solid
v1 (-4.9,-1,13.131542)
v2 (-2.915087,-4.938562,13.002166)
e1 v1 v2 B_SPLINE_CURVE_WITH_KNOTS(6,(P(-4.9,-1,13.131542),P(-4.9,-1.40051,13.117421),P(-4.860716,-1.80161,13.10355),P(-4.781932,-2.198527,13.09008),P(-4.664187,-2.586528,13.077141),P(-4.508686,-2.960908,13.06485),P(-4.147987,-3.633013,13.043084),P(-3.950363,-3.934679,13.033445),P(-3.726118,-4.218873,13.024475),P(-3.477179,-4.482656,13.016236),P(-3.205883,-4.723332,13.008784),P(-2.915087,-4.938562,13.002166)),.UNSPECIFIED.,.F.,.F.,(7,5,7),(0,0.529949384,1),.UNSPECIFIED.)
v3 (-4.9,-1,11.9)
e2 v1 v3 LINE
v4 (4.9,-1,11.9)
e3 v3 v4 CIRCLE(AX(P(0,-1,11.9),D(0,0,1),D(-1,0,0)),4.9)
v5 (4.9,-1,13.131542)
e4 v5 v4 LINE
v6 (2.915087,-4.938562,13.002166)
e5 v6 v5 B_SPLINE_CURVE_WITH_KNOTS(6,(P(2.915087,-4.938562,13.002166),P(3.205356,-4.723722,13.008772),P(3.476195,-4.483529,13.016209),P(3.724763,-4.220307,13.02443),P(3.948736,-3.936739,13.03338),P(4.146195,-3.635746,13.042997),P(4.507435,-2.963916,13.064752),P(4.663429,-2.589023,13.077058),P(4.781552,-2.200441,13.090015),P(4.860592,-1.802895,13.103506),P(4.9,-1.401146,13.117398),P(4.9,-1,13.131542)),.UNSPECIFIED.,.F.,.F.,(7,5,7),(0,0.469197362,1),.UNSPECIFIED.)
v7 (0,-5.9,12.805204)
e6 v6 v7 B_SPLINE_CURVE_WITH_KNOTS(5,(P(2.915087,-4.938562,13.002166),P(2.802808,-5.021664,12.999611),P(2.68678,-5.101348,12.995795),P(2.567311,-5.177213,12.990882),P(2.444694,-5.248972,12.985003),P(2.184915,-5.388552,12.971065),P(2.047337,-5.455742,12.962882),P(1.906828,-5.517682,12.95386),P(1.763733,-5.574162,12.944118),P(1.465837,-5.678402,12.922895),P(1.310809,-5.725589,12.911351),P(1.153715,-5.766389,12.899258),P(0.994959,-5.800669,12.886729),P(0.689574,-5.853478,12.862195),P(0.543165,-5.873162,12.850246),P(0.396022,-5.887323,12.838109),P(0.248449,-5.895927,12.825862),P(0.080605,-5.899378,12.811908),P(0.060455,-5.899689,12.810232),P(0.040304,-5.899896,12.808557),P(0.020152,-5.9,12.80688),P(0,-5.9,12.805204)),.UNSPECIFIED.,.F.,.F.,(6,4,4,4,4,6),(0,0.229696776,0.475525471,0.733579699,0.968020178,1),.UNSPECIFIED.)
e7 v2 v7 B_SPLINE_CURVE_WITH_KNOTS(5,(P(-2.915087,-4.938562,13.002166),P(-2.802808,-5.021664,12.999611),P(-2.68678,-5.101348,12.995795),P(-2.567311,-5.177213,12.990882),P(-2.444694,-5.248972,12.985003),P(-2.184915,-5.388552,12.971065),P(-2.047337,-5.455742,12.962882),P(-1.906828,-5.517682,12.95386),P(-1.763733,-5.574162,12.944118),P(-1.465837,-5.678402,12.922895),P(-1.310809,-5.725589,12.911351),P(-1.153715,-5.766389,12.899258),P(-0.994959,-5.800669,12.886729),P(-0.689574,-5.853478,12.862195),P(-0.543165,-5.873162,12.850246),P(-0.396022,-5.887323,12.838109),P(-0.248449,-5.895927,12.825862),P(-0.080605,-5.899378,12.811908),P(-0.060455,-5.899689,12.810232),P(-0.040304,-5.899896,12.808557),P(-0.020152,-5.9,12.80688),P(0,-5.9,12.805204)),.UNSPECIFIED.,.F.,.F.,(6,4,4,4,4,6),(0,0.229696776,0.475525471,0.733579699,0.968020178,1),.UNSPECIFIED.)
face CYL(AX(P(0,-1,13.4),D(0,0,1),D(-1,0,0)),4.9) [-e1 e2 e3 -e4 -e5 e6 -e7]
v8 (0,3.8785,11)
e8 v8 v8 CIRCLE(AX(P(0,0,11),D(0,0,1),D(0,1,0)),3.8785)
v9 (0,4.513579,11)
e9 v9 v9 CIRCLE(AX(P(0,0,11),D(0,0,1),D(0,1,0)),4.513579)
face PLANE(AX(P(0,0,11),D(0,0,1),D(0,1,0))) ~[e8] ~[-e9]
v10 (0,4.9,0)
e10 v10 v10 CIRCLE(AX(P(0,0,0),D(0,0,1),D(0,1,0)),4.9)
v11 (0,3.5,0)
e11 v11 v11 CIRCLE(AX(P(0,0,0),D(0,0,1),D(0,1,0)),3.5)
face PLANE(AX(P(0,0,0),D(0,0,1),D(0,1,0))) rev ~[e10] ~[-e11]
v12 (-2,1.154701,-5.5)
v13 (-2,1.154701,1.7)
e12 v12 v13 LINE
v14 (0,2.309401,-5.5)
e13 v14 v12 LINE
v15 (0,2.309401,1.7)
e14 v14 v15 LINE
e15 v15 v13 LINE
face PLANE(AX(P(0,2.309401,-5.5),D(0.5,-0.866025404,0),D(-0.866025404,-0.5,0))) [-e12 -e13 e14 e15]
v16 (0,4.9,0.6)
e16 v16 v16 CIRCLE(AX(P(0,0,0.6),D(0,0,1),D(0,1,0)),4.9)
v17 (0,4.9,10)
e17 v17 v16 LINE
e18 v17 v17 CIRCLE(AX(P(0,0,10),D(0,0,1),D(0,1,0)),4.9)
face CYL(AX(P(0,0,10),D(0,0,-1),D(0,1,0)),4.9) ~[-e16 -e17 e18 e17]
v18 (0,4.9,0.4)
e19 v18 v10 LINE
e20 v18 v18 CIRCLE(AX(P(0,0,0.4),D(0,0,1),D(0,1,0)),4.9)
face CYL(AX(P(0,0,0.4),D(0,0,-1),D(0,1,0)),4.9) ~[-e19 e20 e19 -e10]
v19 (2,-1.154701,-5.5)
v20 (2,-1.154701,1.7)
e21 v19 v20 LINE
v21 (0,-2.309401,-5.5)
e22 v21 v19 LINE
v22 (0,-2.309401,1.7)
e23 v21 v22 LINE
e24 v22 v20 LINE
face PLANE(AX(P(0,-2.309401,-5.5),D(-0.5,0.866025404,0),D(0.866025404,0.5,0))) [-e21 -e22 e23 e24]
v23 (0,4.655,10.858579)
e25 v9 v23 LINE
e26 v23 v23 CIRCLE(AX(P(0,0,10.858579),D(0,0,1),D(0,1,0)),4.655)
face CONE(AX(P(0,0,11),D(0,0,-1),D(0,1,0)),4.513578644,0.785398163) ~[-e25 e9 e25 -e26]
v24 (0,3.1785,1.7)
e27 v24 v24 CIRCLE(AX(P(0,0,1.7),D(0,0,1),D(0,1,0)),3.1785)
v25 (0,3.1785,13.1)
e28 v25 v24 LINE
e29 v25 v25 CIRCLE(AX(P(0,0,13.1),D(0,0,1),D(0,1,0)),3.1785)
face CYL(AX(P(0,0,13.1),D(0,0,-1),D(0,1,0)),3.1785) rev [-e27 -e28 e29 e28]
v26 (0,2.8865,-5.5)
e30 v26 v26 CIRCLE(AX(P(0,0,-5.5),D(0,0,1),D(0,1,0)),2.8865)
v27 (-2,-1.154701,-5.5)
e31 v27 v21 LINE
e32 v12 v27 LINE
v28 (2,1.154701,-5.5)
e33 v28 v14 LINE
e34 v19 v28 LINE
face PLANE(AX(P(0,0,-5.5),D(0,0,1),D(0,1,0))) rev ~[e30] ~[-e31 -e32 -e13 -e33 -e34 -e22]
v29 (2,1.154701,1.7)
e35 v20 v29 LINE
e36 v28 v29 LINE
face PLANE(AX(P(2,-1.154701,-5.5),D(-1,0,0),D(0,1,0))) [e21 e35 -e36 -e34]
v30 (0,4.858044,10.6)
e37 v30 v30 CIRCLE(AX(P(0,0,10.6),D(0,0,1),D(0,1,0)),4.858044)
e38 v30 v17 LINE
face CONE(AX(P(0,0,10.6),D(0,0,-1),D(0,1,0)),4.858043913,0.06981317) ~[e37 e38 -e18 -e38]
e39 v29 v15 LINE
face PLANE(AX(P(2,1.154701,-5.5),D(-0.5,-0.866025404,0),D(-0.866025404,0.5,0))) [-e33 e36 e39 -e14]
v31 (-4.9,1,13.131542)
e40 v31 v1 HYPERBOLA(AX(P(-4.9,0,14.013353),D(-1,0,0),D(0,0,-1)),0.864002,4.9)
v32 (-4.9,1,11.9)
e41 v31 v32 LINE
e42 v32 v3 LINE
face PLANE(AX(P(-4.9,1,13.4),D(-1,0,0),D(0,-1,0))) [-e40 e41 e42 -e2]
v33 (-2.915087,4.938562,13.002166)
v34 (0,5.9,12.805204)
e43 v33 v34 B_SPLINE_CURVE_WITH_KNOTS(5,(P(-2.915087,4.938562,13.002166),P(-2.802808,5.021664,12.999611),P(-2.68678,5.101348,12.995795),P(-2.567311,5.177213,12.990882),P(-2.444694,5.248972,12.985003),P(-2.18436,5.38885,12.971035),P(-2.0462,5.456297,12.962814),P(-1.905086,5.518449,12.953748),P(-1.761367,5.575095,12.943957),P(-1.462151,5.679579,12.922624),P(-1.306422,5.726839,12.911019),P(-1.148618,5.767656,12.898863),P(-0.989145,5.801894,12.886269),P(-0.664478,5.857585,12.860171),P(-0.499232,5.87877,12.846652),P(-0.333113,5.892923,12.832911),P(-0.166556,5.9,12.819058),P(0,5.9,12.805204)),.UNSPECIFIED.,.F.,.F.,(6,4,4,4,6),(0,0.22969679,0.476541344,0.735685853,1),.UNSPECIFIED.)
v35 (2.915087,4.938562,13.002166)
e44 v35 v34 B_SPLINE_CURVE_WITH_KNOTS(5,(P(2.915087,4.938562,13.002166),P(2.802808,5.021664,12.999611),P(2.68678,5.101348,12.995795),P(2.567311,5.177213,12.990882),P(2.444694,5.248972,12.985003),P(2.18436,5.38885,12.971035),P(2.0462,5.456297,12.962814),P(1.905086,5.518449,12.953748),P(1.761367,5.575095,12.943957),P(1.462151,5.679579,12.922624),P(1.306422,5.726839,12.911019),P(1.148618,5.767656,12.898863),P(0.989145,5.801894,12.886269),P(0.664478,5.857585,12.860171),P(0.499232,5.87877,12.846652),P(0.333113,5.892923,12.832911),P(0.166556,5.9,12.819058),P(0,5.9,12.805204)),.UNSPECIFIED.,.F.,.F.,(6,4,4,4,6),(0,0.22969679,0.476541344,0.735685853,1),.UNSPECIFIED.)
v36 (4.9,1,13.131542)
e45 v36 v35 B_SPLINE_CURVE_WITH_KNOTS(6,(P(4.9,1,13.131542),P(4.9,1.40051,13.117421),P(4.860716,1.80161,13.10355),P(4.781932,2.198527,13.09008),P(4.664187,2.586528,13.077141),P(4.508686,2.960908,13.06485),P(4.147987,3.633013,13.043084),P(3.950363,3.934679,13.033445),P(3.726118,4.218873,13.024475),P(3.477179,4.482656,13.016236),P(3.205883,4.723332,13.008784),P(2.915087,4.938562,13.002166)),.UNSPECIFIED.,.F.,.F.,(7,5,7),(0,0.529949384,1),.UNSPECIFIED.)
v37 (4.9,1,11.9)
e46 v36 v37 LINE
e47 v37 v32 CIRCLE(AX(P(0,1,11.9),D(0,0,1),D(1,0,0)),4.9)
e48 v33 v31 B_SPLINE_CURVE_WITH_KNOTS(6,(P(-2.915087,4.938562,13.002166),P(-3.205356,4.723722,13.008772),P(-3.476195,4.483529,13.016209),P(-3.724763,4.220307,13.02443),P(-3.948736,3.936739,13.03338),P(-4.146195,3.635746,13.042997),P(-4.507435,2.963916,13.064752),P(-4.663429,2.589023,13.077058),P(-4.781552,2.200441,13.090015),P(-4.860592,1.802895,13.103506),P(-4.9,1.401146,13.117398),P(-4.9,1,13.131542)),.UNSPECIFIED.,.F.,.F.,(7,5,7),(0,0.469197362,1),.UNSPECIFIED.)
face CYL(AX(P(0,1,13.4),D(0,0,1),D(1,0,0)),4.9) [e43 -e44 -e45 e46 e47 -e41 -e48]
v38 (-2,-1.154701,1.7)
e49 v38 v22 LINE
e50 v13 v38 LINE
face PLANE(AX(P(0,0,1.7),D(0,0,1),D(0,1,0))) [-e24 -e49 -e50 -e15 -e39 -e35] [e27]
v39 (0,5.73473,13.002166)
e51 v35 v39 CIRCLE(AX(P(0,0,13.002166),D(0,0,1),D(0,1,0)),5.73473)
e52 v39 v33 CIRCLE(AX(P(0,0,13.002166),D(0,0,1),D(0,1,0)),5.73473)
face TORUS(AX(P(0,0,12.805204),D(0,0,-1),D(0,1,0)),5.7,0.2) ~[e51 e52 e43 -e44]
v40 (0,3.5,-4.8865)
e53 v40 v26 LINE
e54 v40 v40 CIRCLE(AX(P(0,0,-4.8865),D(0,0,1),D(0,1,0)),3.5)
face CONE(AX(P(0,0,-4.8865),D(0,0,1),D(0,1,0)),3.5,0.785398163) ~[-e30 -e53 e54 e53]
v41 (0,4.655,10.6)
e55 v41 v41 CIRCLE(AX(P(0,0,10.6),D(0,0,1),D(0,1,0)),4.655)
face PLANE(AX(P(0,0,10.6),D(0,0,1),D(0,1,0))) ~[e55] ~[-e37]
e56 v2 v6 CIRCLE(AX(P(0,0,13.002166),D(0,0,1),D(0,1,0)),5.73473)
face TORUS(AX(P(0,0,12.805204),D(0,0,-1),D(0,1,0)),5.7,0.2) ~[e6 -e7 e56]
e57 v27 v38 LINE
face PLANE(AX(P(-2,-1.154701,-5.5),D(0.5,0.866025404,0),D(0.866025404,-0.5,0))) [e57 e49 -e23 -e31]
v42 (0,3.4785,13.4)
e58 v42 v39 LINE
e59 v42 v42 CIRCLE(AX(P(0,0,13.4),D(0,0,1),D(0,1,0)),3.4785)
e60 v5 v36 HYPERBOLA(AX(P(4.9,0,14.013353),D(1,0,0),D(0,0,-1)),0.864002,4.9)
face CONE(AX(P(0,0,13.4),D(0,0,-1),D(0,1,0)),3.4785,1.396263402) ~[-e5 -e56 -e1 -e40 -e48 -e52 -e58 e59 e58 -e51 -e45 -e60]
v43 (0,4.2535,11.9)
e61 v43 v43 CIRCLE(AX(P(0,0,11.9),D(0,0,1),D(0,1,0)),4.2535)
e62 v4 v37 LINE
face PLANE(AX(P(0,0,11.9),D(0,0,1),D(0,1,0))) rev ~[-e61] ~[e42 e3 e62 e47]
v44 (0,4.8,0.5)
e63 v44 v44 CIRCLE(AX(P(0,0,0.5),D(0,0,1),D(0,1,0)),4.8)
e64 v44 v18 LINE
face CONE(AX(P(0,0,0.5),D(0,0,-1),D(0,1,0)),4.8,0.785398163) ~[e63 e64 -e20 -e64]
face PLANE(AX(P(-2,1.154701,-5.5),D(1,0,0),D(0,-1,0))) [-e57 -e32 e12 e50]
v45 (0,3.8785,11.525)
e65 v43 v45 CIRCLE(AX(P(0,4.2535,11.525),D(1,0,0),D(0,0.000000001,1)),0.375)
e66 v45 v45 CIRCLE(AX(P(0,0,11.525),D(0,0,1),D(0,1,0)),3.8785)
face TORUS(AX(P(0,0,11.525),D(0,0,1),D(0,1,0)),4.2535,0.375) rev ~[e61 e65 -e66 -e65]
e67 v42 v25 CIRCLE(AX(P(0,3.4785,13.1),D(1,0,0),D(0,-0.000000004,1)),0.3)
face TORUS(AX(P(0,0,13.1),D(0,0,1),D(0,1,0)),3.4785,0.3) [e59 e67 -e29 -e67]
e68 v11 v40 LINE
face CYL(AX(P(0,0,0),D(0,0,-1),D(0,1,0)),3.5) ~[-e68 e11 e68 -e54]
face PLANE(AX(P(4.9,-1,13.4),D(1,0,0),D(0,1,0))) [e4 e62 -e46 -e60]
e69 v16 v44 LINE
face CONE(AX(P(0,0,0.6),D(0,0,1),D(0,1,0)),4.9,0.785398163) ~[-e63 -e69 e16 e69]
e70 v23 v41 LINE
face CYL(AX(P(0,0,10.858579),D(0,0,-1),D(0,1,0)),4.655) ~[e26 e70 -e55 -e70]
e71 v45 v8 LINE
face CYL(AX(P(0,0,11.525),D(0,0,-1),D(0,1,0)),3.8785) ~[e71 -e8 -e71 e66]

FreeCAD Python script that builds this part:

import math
import FreeCAD as App
import Part
import Sketcher
from FreeCAD import Vector
Q = App.Units.Quantity


def add_polygon(sketch, points):
    """Adds a closed chain of lines whose ends are joined by coincident constraints."""
    first, n = sketch.GeometryCount, len(points)
    for a, b in zip(points, points[1:] + points[:1]):
        sketch.addGeometry(Part.LineSegment(App.Vector(*a, 0), App.Vector(*b, 0)), False)
    for i in range(n):
        sketch.addConstraint(Sketcher.Constraint("Coincident", first + i, 2, first + (i + 1) % n, 1))

doc = App.newDocument("Part")
body = doc.addObject("PartDesign::Body", "Body")

# Sketch on YZ plane
sketch1 = doc.addObject("Sketcher::SketchObject", "Sketch")
body.addObject(sketch1)
sketch1.AttachmentSupport = (doc.YZ_Plane, [""])
sketch1.MapMode = "FlatFace"
sketch1.addGeometry(Part.LineSegment(Vector(3.48, 13.4, 0), Vector(0, 13.4, 0)), False)
sketch1.addGeometry(Part.LineSegment(Vector(0, 13.4, 0), Vector(0, -5.5, 0)), False)
sketch1.addGeometry(Part.LineSegment(Vector(0, -5.5, 0), Vector(2.89, -5.5, 0)), False)
sketch1.addGeometry(Part.LineSegment(Vector(2.89, -5.5, 0), Vector(3.5, -4.89, 0)), False)
sketch1.addGeometry(Part.LineSegment(Vector(3.5, -4.89, 0), Vector(3.5, 0, 0)), False)
sketch1.addGeometry(Part.LineSegment(Vector(3.5, 0, 0), Vector(4.9, 0, 0)), False)
sketch1.addGeometry(Part.LineSegment(Vector(4.9, 0, 0), Vector(4.9, 0.4, 0)), False)
sketch1.addGeometry(Part.LineSegment(Vector(4.9, 0.4, 0), Vector(4.8, 0.5, 0)), False)
sketch1.addGeometry(Part.LineSegment(Vector(4.8, 0.5, 0), Vector(4.9, 0.6, 0)), False)
sketch1.addGeometry(Part.LineSegment(Vector(4.9, 0.6, 0), Vector(4.9, 10, 0)), False)
sketch1.addGeometry(Part.LineSegment(Vector(4.9, 10, 0), Vector(4.86, 10.6, 0)), False)
sketch1.addGeometry(Part.LineSegment(Vector(4.86, 10.6, 0), Vector(4.66, 10.6, 0)), False)
sketch1.addGeometry(Part.LineSegment(Vector(4.66, 10.6, 0), Vector(4.66, 10.86, 0)), False)
sketch1.addGeometry(Part.LineSegment(Vector(4.66, 10.86, 0), Vector(4.51, 11, 0)), False)
sketch1.addGeometry(Part.LineSegment(Vector(4.51, 11, 0), Vector(3.88, 11, 0)), False)
sketch1.addGeometry(Part.LineSegment(Vector(3.88, 11, 0), Vector(3.88, 11.53, 0)), False)
sketch1.addGeometry(Part.ArcOfCircle(Part.Circle(Vector(4.25, 11.53, 0), Vector(0, 0, 1), 0.38), math.radians(90), math.radians(180)), False)
sketch1.addGeometry(Part.LineSegment(Vector(4.25, 11.9, 0), Vector(5.9, 11.9, 0)), False)
sketch1.addGeometry(Part.LineSegment(Vector(5.9, 11.9, 0), Vector(5.9, 12.81, 0)), False)
sketch1.addGeometry(Part.ArcOfCircle(Part.Circle(Vector(5.7, 12.81, 0), Vector(0, 0, 1), 0.2), math.radians(0), math.radians(80)), False)
sketch1.addGeometry(Part.LineSegment(Vector(5.73, 13, 0), Vector(3.48, 13.4, 0)), False)
sketch1.addConstraint(Sketcher.Constraint("Coincident", 0, 2, 1, 1))
sketch1.addConstraint(Sketcher.Constraint("Coincident", 1, 2, 2, 1))
sketch1.addConstraint(Sketcher.Constraint("Coincident", 2, 2, 3, 1))
sketch1.addConstraint(Sketcher.Constraint("Coincident", 3, 2, 4, 1))
sketch1.addConstraint(Sketcher.Constraint("Coincident", 4, 2, 5, 1))
sketch1.addConstraint(Sketcher.Constraint("Coincident", 5, 2, 6, 1))
sketch1.addConstraint(Sketcher.Constraint("Coincident", 6, 2, 7, 1))
sketch1.addConstraint(Sketcher.Constraint("Coincident", 7, 2, 8, 1))
sketch1.addConstraint(Sketcher.Constraint("Coincident", 8, 2, 9, 1))
sketch1.addConstraint(Sketcher.Constraint("Coincident", 9, 2, 10, 1))
sketch1.addConstraint(Sketcher.Constraint("Coincident", 10, 2, 11, 1))
sketch1.addConstraint(Sketcher.Constraint("Coincident", 11, 2, 12, 1))
sketch1.addConstraint(Sketcher.Constraint("Coincident", 12, 2, 13, 1))
sketch1.addConstraint(Sketcher.Constraint("Coincident", 13, 2, 14, 1))
sketch1.addConstraint(Sketcher.Constraint("Coincident", 14, 2, 15, 1))
sketch1.addConstraint(Sketcher.Constraint("Tangent", 15, 2, 16, 2))
sketch1.addConstraint(Sketcher.Constraint("Tangent", 16, 1, 17, 1))
sketch1.addConstraint(Sketcher.Constraint("Coincident", 17, 2, 18, 1))
sketch1.addConstraint(Sketcher.Constraint("Tangent", 18, 2, 19, 1))
sketch1.addConstraint(Sketcher.Constraint("Tangent", 19, 2, 20, 1))
sketch1.addConstraint(Sketcher.Constraint("Coincident", 20, 2, 0, 1))
sketch1.addConstraint(Sketcher.Constraint("Horizontal", 0))
sketch1.addConstraint(Sketcher.Constraint("Vertical", 1))
sketch1.addConstraint(Sketcher.Constraint("Horizontal", 2))
sketch1.addConstraint(Sketcher.Constraint("Vertical", 4))
sketch1.addConstraint(Sketcher.Constraint("Horizontal", 5))
sketch1.addConstraint(Sketcher.Constraint("Vertical", 6))
sketch1.addConstraint(Sketcher.Constraint("Vertical", 9))
sketch1.addConstraint(Sketcher.Constraint("Horizontal", 11))
sketch1.addConstraint(Sketcher.Constraint("Vertical", 12))
sketch1.addConstraint(Sketcher.Constraint("Horizontal", 14))
sketch1.addConstraint(Sketcher.Constraint("Vertical", 15))
sketch1.addConstraint(Sketcher.Constraint("Horizontal", 17))
sketch1.addConstraint(Sketcher.Constraint("Vertical", 18))
sketch1.addConstraint(Sketcher.Constraint("PointOnObject", 0, 2, -2))
sketch1.addConstraint(Sketcher.Constraint("PointOnObject", 4, 2, -1))
sketch1.addConstraint(Sketcher.Constraint("Perpendicular", 3, 7))
sketch1.addConstraint(Sketcher.Constraint("Perpendicular", 7, 8))
sketch1.addConstraint(Sketcher.Constraint("Perpendicular", 8, 13))
sketch1.addConstraint(Sketcher.Constraint("Vertical", 6, 2, 8, 2))
sketch1.addConstraint(Sketcher.Constraint("Equal", 7, 8))
sketch1.addConstraint(Sketcher.Constraint("Radius", 19, 0.2))
sketch1.addConstraint(Sketcher.Constraint("Angle", 10, Q("94 deg")))
sketch1.addConstraint(Sketcher.Constraint("Angle", 20, Q("170 deg")))
sketch1.addConstraint(Sketcher.Constraint("DistanceX", 5, 1, 5, 2, 1.4))
sketch1.addConstraint(Sketcher.Constraint("DistanceY", 1, 2, 1, 1, 18.9))
sketch1.addConstraint(Sketcher.Constraint("DistanceY", 6, 1, 6, 2, 0.4))
sketch1.addConstraint(Sketcher.Constraint("DistanceY", 9, 1, 9, 2, 9.4))
sketch1.addConstraint(Sketcher.Constraint("DistanceY", -1, 1, 9, 2, 10.0))
sketch1.addConstraint(Sketcher.Constraint("DistanceY", -1, 1, 13, 2, 11.0))
sketch1.addConstraint(Sketcher.Constraint("Radius", 16, 0.375))
sketch1.addConstraint(Sketcher.Constraint("DistanceY", 2, 2, 7, 2, 6.0))
sketch1.addConstraint(Sketcher.Constraint("DistanceY", 8, 2, 10, 2, 10.0))
sketch1.addConstraint(Sketcher.Constraint("Distance", 13, 0.2))
sketch1.addConstraint(Sketcher.Constraint("DistanceX", -1, 1, 19, 3, 5.7))
sketch1.addConstraint(Sketcher.Constraint("DistanceX", -1, 1, 3, 2, 3.5))
sketch1.addConstraint(Sketcher.Constraint("DistanceY", -1, 1, 16, 1, 11.9))
sketch1.addConstraint(Sketcher.Constraint("DistanceX", 20, 2, 15, 2, 0.4))
sketch1.addConstraint(Sketcher.Constraint("DistanceX", 0, 2, 0, 1, 3.4785))
sketch1.addConstraint(Sketcher.Constraint("DistanceX", 2, 1, 2, 2, 2.8865))
sketch1.addConstraint(Sketcher.Constraint("DistanceX", -1, 1, 11, 2, 4.655))
revolution = doc.addObject("PartDesign::Revolution", "Revolution")
body.addObject(revolution)
revolution.Profile = sketch1
revolution.ReferenceAxis = (sketch1, ["V_Axis"])
revolution.Angle = 360

# Sketch on XY plane
sketch2 = doc.addObject("Sketcher::SketchObject", "Sketch001")
body.addObject(sketch2)
sketch2.AttachmentSupport = (doc.XY_Plane, [""])
sketch2.MapMode = "FlatFace"
sketch2.AttachmentOffset = App.Placement(Vector(0, 0, 13.4), App.Rotation())
add_polygon(sketch2, [(-11.8, 11.8), (-11.8, -11.8), (11.8, -11.8), (11.8, 11.8)])  # lines 0-3
sketch2.addGeometry(Part.LineSegment(Vector(4.9, 1, 0), Vector(4.9, -1, 0)), False)  # 4
sketch2.addGeometry(Part.ArcOfCircle(Part.Circle(Vector(0, -1, 0), Vector(0, 0, 1), 4.9), math.radians(180), math.radians(360)), False)  # 5
sketch2.addGeometry(Part.LineSegment(Vector(-4.9, -1, 0), Vector(-4.9, 1, 0)), False)  # 6
sketch2.addGeometry(Part.ArcOfCircle(Part.Circle(Vector(0, 1, 0), Vector(0, 0, 1), 4.9), math.radians(0), math.radians(180)), False)  # 7
sketch2.addConstraint(Sketcher.Constraint("Tangent", 4, 2, 5, 2))
sketch2.addConstraint(Sketcher.Constraint("Tangent", 5, 1, 6, 1))
sketch2.addConstraint(Sketcher.Constraint("Tangent", 6, 2, 7, 2))
sketch2.addConstraint(Sketcher.Constraint("Tangent", 7, 1, 4, 1))
sketch2.addConstraint(Sketcher.Constraint("Vertical", 0))
sketch2.addConstraint(Sketcher.Constraint("Horizontal", 1))
sketch2.addConstraint(Sketcher.Constraint("Vertical", 2))
sketch2.addConstraint(Sketcher.Constraint("Horizontal", 3))
sketch2.addConstraint(Sketcher.Constraint("Vertical", 4))
sketch2.addConstraint(Sketcher.Constraint("Vertical", 6))
sketch2.addConstraint(Sketcher.Constraint("Symmetric", 5, 3, 7, 3, -1, 1))
sketch2.addConstraint(Sketcher.Constraint("Symmetric", 0, 2, 2, 2, -1, 1))
sketch2.addConstraint(Sketcher.Constraint("Equal", 3, 0))
sketch2.addConstraint(Sketcher.Constraint("Radius", 5, 4.9))
sketch2.addConstraint(Sketcher.Constraint("DistanceY", 4, 2, 4, 1, 2.0))
sketch2.addConstraint(Sketcher.Constraint("DistanceX", 1, 1, 1, 2, 23.6))
pocket1 = doc.addObject("PartDesign::Pocket", "Pocket")
body.addObject(pocket1)
pocket1.Profile = sketch2
pocket1.Length = 1.5

# Sketch on XY plane
sketch3 = doc.addObject("Sketcher::SketchObject", "Sketch002")
body.addObject(sketch3)
sketch3.AttachmentSupport = (doc.XY_Plane, [""])
sketch3.MapMode = "FlatFace"
sketch3.AttachmentOffset = App.Placement(Vector(0, 0, -5.5), App.Rotation())
add_polygon(sketch3, [(-2, 1.2), (-2, -1.2), (0, -2.3), (2, -1.2), (2, 1.2), (0, 2.3)])  # lines 0-5
sketch3.addConstraint(Sketcher.Constraint("Vertical", 0))
sketch3.addConstraint(Sketcher.Constraint("Vertical", 3))
sketch3.addConstraint(Sketcher.Constraint("Symmetric", 0, 2, 3, 2, -1, 1))
sketch3.addConstraint(Sketcher.Constraint("Symmetric", 1, 2, 4, 2, -1, 1))
sketch3.addConstraint(Sketcher.Constraint("PointOnObject", 1, 2, -2))
sketch3.addConstraint(Sketcher.Constraint("Parallel", 2, 5))
sketch3.addConstraint(Sketcher.Constraint("Horizontal", 0, 2, 2, 2))
sketch3.addConstraint(Sketcher.Constraint("Angle", 1, Q("-30 deg")))
sketch3.addConstraint(Sketcher.Constraint("DistanceX", 0, 2, -1, 1, 2.0))
sketch3.addConstraint(Sketcher.Constraint("DistanceY", 0, 2, 0, 1, 2.309401))
pocket2 = doc.addObject("PartDesign::Pocket", "Pocket001")
body.addObject(pocket2)
pocket2.Profile = sketch3
pocket2.Length = 7.2
pocket2.Reversed = True

# Sketch on YZ plane
sketch4 = doc.addObject("Sketcher::SketchObject", "Sketch003")
body.addObject(sketch4)
sketch4.AttachmentSupport = (doc.YZ_Plane, [""])
sketch4.MapMode = "FlatFace"
sketch4.addGeometry(Part.LineSegment(Vector(3.48, 13.4, 0), Vector(0, 13.4, 0)), False)
sketch4.addGeometry(Part.LineSegment(Vector(0, 13.4, 0), Vector(0, 1.7, 0)), False)
sketch4.addGeometry(Part.LineSegment(Vector(0, 1.7, 0), Vector(3.18, 1.7, 0)), False)
sketch4.addGeometry(Part.LineSegment(Vector(3.18, 1.7, 0), Vector(3.18, 13.1, 0)), False)
sketch4.addGeometry(Part.ArcOfCircle(Part.Circle(Vector(3.48, 13.1, 0), Vector(0, 0, 1), 0.3), math.radians(90), math.radians(180)), False)
sketch4.addConstraint(Sketcher.Constraint("Coincident", 0, 2, 1, 1))
sketch4.addConstraint(Sketcher.Constraint("Coincident", 1, 2, 2, 1))
sketch4.addConstraint(Sketcher.Constraint("Coincident", 2, 2, 3, 1))
sketch4.addConstraint(Sketcher.Constraint("Tangent", 3, 2, 4, 2))
sketch4.addConstraint(Sketcher.Constraint("Tangent", 4, 1, 0, 1))
sketch4.addConstraint(Sketcher.Constraint("Horizontal", 0))
sketch4.addConstraint(Sketcher.Constraint("Vertical", 1))
sketch4.addConstraint(Sketcher.Constraint("Horizontal", 2))
sketch4.addConstraint(Sketcher.Constraint("Vertical", 3))
sketch4.addConstraint(Sketcher.Constraint("PointOnObject", 0, 2, -2))
sketch4.addConstraint(Sketcher.Constraint("Radius", 4, 0.3))
sketch4.addConstraint(Sketcher.Constraint("DistanceY", 1, 2, 1, 1, 11.7))
sketch4.addConstraint(Sketcher.Constraint("DistanceY", -1, 1, 4, 3, 13.1))
sketch4.addConstraint(Sketcher.Constraint("DistanceX", 0, 2, 0, 1, 3.4785))
groove = doc.addObject("PartDesign::Groove", "Groove")
body.addObject(groove)
groove.Profile = sketch4
groove.ReferenceAxis = (sketch4, ["V_Axis"])
groove.Angle = 360

doc.recompute()
